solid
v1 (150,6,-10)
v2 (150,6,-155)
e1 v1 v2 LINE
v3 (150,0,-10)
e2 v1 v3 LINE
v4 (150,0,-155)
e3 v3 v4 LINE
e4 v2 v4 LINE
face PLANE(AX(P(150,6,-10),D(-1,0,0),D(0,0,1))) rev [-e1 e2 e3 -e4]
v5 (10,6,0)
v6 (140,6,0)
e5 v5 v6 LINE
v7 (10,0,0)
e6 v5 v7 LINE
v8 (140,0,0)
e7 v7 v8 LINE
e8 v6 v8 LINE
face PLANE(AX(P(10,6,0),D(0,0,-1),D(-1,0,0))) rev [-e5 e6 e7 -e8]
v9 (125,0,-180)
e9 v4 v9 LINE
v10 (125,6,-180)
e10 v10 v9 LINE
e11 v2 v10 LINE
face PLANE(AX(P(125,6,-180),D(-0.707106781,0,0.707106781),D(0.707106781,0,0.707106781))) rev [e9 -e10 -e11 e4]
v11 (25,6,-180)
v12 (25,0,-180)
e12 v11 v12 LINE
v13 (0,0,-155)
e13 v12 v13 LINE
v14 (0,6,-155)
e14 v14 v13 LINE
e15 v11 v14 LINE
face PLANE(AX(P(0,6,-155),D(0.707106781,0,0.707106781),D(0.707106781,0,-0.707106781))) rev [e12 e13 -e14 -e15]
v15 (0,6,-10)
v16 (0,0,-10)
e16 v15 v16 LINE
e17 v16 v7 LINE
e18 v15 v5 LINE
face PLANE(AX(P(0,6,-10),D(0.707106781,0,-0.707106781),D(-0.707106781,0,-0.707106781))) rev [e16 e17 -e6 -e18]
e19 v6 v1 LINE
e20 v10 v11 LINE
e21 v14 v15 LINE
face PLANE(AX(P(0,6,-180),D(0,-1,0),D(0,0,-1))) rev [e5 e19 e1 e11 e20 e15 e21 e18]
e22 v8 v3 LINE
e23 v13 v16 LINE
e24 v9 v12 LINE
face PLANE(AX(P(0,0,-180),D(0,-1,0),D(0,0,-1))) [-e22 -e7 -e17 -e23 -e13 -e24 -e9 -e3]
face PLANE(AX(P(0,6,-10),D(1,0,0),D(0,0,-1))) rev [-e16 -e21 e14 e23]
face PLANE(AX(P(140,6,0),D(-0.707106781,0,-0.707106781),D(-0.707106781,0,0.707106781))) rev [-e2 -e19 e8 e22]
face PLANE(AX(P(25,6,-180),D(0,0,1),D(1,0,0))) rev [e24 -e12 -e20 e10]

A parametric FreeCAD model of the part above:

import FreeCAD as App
import Part
import Sketcher

doc = App.newDocument("Part")
body = doc.addObject("PartDesign::Body", "Body")

# Sketch on XZ plane
sketch1 = body.newObject("Sketcher::SketchObject", "Sketch")
sketch1.AttachmentSupport = (doc.getObject("XZ_Plane"), [""])
sketch1.MapMode = "FlatFace"
sketch1.addGeometry(Part.LineSegment(App.Vector(25, -180, 0), App.Vector(0, -155, 0)), False)
sketch1.addGeometry(Part.LineSegment(App.Vector(0, -155, 0), App.Vector(0, -10, 0)), False)
sketch1.addGeometry(Part.LineSegment(App.Vector(0, -10, 0), App.Vector(10, 0, 0)), False)
sketch1.addGeometry(Part.LineSegment(App.Vector(10, 0, 0), App.Vector(140, 0, 0)), False)
sketch1.addGeometry(Part.LineSegment(App.Vector(140, 0, 0), App.Vector(150, -10, 0)), False)
sketch1.addGeometry(Part.LineSegment(App.Vector(150, -10, 0), App.Vector(150, -155, 0)), False)
sketch1.addGeometry(Part.LineSegment(App.Vector(150, -155, 0), App.Vector(125, -180, 0)), False)
sketch1.addGeometry(Part.LineSegment(App.Vector(125, -180, 0), App.Vector(25, -180, 0)), False)
sketch1.addConstraint(Sketcher.Constraint("Coincident", 0, 2, 1, 1))
sketch1.addConstraint(Sketcher.Constraint("Coincident", 1, 2, 2, 1))
sketch1.addConstraint(Sketcher.Constraint("Coincident", 2, 2, 3, 1))
sketch1.addConstraint(Sketcher.Constraint("Coincident", 3, 2, 4, 1))
sketch1.addConstraint(Sketcher.Constraint("Coincident", 4, 2, 5, 1))
sketch1.addConstraint(Sketcher.Constraint("Coincident", 5, 2, 6, 1))
sketch1.addConstraint(Sketcher.Constraint("Coincident", 6, 2, 7, 1))
sketch1.addConstraint(Sketcher.Constraint("Coincident", 7, 2, 0, 1))
sketch1.addConstraint(Sketcher.Constraint("Vertical", 1))
sketch1.addConstraint(Sketcher.Constraint("Horizontal", 3))
sketch1.addConstraint(Sketcher.Constraint("Vertical", 5))
sketch1.addConstraint(Sketcher.Constraint("Horizontal", 7))
sketch1.addConstraint(Sketcher.Constraint("PointOnObject", 0, 2, -2))
sketch1.addConstraint(Sketcher.Constraint("PointOnObject", 2, 2, -1))
sketch1.addConstraint(Sketcher.Constraint("Perpendicular", 0, 2))
sketch1.addConstraint(Sketcher.Constraint("Perpendicular", 2, 4))
sketch1.addConstraint(Sketcher.Constraint("Perpendicular", 4, 6))
sketch1.addConstraint(Sketcher.Constraint("Horizontal", 1, 2, 4, 2))
sketch1.addConstraint(Sketcher.Constraint("Horizontal", 0, 2, 5, 2))
sketch1.addConstraint(Sketcher.Constraint("Equal", 2, 4))
sketch1.addConstraint(Sketcher.Constraint("DistanceX", 3, 1, 3, 2, 130.0))
sketch1.addConstraint(Sketcher.Constraint("DistanceX", 7, 2, 7, 1, 100.0))
sketch1.addConstraint(Sketcher.Constraint("DistanceY", 1, 1, 1, 2, 145.0))
sketch1.addConstraint(Sketcher.Constraint("DistanceY", 0, 2, -1, 1, 155.0))
pad1 = body.newObject("PartDesign::Pad", "Pad")
pad1.Profile = sketch1
pad1.Length = 6
pad1.Reversed = True

doc.recompute()
